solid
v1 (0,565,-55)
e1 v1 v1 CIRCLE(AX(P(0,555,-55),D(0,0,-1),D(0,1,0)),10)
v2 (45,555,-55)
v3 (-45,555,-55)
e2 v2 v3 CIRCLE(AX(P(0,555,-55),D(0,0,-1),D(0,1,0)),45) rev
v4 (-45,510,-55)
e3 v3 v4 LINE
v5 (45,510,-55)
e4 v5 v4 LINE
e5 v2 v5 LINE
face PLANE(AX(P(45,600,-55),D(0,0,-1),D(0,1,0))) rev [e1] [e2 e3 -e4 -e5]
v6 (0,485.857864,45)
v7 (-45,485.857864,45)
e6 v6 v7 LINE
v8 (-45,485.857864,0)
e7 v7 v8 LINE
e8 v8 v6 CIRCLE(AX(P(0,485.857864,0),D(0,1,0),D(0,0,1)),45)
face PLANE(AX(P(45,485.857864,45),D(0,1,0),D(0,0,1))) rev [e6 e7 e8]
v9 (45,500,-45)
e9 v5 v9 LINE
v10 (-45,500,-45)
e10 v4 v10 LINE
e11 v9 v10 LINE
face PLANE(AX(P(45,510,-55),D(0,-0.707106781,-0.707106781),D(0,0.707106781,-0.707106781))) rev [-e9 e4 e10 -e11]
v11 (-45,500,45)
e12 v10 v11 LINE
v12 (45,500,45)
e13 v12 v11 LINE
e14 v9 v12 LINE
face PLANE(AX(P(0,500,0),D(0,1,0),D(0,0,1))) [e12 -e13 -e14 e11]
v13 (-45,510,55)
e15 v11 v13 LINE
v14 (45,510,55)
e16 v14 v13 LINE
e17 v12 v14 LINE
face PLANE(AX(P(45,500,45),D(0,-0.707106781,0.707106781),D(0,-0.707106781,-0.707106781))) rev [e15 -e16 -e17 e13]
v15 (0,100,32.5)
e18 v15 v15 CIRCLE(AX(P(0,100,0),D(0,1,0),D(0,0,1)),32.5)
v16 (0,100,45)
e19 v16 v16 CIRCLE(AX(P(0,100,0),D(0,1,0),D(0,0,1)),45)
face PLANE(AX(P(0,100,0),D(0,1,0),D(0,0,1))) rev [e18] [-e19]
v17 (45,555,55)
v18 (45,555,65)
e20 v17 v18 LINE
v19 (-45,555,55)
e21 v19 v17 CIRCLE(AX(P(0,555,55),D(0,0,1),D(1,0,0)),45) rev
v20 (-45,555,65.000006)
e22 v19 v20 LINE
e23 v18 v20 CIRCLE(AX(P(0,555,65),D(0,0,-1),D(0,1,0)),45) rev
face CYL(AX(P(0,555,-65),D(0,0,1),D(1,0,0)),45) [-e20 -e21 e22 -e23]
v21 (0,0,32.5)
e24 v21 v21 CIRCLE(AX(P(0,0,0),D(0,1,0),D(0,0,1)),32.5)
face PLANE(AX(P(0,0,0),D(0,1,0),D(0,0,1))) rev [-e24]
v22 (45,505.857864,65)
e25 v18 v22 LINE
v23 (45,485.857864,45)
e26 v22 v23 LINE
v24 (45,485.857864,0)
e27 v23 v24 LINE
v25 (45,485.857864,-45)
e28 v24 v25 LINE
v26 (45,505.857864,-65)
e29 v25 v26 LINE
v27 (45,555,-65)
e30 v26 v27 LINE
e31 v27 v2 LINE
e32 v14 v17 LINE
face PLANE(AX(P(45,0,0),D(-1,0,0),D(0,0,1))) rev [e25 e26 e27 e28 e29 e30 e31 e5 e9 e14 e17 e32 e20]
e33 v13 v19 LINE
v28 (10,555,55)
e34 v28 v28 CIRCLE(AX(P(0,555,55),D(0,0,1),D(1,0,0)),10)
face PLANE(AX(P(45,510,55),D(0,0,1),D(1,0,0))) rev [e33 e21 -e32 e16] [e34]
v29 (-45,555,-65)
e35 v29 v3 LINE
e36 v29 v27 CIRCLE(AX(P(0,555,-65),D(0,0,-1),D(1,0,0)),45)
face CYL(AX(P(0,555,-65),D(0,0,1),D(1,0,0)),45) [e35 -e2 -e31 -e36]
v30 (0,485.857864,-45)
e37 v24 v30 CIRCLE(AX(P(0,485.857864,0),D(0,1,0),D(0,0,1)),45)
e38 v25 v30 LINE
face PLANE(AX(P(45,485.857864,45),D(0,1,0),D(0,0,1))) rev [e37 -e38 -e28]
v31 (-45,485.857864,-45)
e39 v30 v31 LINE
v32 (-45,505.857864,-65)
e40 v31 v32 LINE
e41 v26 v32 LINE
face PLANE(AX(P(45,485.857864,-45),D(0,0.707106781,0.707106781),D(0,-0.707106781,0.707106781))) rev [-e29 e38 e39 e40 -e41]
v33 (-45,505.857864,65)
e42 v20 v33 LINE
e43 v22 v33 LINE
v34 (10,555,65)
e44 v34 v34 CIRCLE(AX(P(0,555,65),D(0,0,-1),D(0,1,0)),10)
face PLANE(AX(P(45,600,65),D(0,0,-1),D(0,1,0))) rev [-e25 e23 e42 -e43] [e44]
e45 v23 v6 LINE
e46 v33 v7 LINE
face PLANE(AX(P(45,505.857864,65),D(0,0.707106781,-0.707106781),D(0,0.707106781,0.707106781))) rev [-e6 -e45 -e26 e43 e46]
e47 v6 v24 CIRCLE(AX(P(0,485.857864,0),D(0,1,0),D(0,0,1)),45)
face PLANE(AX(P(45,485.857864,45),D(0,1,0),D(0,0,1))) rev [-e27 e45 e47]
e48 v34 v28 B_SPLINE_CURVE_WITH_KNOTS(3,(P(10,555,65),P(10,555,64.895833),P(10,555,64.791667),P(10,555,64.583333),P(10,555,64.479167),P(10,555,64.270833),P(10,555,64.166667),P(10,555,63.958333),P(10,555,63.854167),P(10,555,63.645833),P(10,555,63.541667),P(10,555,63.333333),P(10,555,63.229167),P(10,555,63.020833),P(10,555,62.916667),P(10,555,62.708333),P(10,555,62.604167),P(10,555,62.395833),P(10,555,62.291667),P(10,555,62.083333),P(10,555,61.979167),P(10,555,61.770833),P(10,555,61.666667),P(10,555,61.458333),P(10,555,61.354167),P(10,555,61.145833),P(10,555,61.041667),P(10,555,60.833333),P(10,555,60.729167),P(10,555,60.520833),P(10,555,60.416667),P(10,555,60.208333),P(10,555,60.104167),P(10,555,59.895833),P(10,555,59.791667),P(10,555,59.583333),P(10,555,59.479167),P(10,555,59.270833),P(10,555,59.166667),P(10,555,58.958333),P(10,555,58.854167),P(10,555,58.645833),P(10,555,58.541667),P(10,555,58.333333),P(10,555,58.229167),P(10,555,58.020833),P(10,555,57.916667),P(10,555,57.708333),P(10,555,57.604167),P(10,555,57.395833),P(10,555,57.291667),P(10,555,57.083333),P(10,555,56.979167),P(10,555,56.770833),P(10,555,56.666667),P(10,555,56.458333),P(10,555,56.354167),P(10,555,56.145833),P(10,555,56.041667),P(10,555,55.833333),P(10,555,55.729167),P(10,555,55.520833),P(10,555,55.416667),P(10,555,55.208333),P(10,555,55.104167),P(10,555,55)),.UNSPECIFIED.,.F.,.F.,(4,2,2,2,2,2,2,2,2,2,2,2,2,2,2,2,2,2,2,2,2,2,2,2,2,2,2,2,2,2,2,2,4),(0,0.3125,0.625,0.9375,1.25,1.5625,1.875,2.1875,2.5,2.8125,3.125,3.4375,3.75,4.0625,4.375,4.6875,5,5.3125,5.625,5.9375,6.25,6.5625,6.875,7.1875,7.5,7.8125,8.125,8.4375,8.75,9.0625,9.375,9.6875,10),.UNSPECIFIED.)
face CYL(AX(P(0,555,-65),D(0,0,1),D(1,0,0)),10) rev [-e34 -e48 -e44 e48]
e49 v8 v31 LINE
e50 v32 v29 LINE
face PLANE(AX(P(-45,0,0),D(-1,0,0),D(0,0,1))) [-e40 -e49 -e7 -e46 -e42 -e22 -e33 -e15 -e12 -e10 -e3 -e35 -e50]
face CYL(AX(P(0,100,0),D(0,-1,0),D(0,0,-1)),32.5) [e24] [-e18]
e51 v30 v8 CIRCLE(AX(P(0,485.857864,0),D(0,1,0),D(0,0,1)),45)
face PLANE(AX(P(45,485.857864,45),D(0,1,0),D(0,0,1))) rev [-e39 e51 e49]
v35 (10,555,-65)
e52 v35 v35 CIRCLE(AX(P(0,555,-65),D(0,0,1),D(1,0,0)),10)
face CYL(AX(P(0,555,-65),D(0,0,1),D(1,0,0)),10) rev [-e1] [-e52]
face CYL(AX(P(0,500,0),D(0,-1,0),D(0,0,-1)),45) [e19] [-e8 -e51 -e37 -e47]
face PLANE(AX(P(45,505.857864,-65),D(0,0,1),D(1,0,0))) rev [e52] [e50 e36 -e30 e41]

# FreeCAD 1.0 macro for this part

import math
import FreeCAD as App
import Part
import Sketcher
Q = App.Units.Quantity


def add_polygon(sketch, points):
    """Adds a closed chain of lines whose ends are joined by coincident constraints."""
    first, n = sketch.GeometryCount, len(points)
    for a, b in zip(points, points[1:] + points[:1]):
        sketch.addGeometry(Part.LineSegment(App.Vector(*a, 0), App.Vector(*b, 0)), False)
    for i in range(n):
        sketch.addConstraint(Sketcher.Constraint("Coincident", first + i, 2, first + (i + 1) % n, 1))

doc = App.newDocument("Part")
body = doc.addObject("PartDesign::Body", "Body")

sketch1 = body.newObject("Sketcher::SketchObject", "Sketch")
sketch1.AttachmentSupport = (doc.getObject("XZ_Plane"), [""])
sketch1.MapMode = "FlatFace"
sketch1.addGeometry(Part.Circle(App.Vector(0, 0, 0), App.Vector(0, 0, 1), 32), False)
sketch1.addConstraint(Sketcher.Constraint("Coincident", 0, 3, -1, 1))
sketch1.addConstraint(Sketcher.Constraint("Diameter", 0, Q("65 mm")))
pad1 = body.newObject("PartDesign::Pad", "Pad")
pad1.Profile = sketch1
pad1.Length = 100
pad1.Reversed = True

sketch2 = body.newObject("Sketcher::SketchObject", "Sketch001")
sketch2.AttachmentSupport = (doc.getObject("XZ_Plane"), [""])
sketch2.MapMode = "FlatFace"
sketch2.AttachmentOffset = App.Placement(App.Vector(0, 0, -100), App.Rotation())
sketch2.addGeometry(Part.Circle(App.Vector(0, 0, 0), App.Vector(0, 0, 1), 45), False)
sketch2.addConstraint(Sketcher.Constraint("Coincident", 0, 3, -1, 1))
sketch2.addConstraint(Sketcher.Constraint("Diameter", 0, Q("90 mm")))
pad2 = body.newObject("PartDesign::Pad", "Pad001")
pad2.Profile = sketch2
pad2.Length = 400
pad2.Reversed = True

sketch3 = body.newObject("Sketcher::SketchObject", "Sketch002")
sketch3.AttachmentSupport = (doc.getObject("YZ_Plane"), [""])
sketch3.MapMode = "FlatFace"
add_polygon(sketch3, [(500, 45), (510, 55), (600, 55), (600, 65), (506, 65), (486, 45), (486, -45), (506, -65), (600, -65), (600, -55), (510, -55), (500, -45)])
sketch3.addConstraint(Sketcher.Constraint("Horizontal", 1))
sketch3.addConstraint(Sketcher.Constraint("Vertical", 2))
sketch3.addConstraint(Sketcher.Constraint("Horizontal", 3))
sketch3.addConstraint(Sketcher.Constraint("Vertical", 5))
sketch3.addConstraint(Sketcher.Constraint("Horizontal", 7))
sketch3.addConstraint(Sketcher.Constraint("Vertical", 8))
sketch3.addConstraint(Sketcher.Constraint("Horizontal", 9))
sketch3.addConstraint(Sketcher.Constraint("Vertical", 11))
sketch3.addConstraint(Sketcher.Constraint("Symmetric", 3, 2, 6, 2, -1))
sketch3.addConstraint(Sketcher.Constraint("Symmetric", 1, 2, 8, 2, -1))
sketch3.addConstraint(Sketcher.Constraint("Parallel", 0, 4))
sketch3.addConstraint(Sketcher.Constraint("Perpendicular", 4, 6))
sketch3.addConstraint(Sketcher.Constraint("Parallel", 6, 10))
sketch3.addConstraint(Sketcher.Constraint("Horizontal", 5, 2, 10, 2))
sketch3.addConstraint(Sketcher.Constraint("Horizontal", 4, 2, 11, 2))
sketch3.addConstraint(Sketcher.Constraint("Vertical", 0, 2, 9, 2))
sketch3.addConstraint(Sketcher.Constraint("Equal", 9, 5))
sketch3.addConstraint(Sketcher.Constraint("DistanceX", 1, 1, 1, 2, Q("90 mm")))
sketch3.addConstraint(Sketcher.Constraint("DistanceY", 2, 1, 2, 2, Q("10 mm")))
sketch3.addConstraint(Sketcher.Constraint("DistanceX", -1, 1, 0, 2, Q("510 mm")))
sketch3.addConstraint(Sketcher.Constraint("DistanceY", -1, 1, 0, 2, Q("55 mm")))
sketch3.addConstraint(Sketcher.Constraint("DistanceX", 3, 2, 3, 1, Q("94.142136 mm")))
pad3 = body.newObject("PartDesign::Pad", "Pad002")
pad3.Profile = sketch3
pad3.Length = 90
pad3.Midplane = True

sketch4 = body.newObject("Sketcher::SketchObject", "Sketch003")
sketch4.AttachmentSupport = (doc.getObject("XY_Plane"), [""])
sketch4.MapMode = "FlatFace"
sketch4.AttachmentOffset = App.Placement(App.Vector(0, 0, 65), App.Rotation())
sketch4.addGeometry(Part.Circle(App.Vector(0, 555, 0), App.Vector(0, 0, 1), 10), False)
sketch4.addGeometry(Part.LineSegment(App.Vector(-45, 605, 0), App.Vector(-45, 555, 0)), False)
sketch4.addGeometry(Part.ArcOfCircle(Part.Circle(App.Vector(0, 555, 0), App.Vector(0, 0, 1), 45), math.radians(0), math.radians(180)), False)
sketch4.addGeometry(Part.LineSegment(App.Vector(45, 555, 0), App.Vector(45, 605, 0)), False)
sketch4.addGeometry(Part.LineSegment(App.Vector(45, 605, 0), App.Vector(-45, 605, 0)), False)
sketch4.addConstraint(Sketcher.Constraint("Tangent", 1, 2, 2, 2))
sketch4.addConstraint(Sketcher.Constraint("Tangent", 2, 1, 3, 1))
sketch4.addConstraint(Sketcher.Constraint("Coincident", 3, 2, 4, 1))
sketch4.addConstraint(Sketcher.Constraint("Coincident", 4, 2, 1, 1))
sketch4.addConstraint(Sketcher.Constraint("Vertical", 1))
sketch4.addConstraint(Sketcher.Constraint("Vertical", 3))
sketch4.addConstraint(Sketcher.Constraint("Horizontal", 4))
sketch4.addConstraint(Sketcher.Constraint("Coincident", 2, 3, 0, 3))
sketch4.addConstraint(Sketcher.Constraint("PointOnObject", 0, 3, -2))
sketch4.addConstraint(Sketcher.Constraint("Diameter", 0, Q("20 mm")))
sketch4.addConstraint(Sketcher.Constraint("Radius", 2, Q("45 mm")))
sketch4.addConstraint(Sketcher.Constraint("DistanceY", 1, 2, 1, 1, Q("50 mm")))
sketch4.addConstraint(Sketcher.Constraint("DistanceY", -1, 1, 0, 3, Q("555 mm")))
pocket1 = body.newObject("PartDesign::Pocket", "Pocket")
pocket1.Profile = sketch4
pocket1.Type = "ThroughAll"
pocket1.Midplane = True

doc.recompute()
